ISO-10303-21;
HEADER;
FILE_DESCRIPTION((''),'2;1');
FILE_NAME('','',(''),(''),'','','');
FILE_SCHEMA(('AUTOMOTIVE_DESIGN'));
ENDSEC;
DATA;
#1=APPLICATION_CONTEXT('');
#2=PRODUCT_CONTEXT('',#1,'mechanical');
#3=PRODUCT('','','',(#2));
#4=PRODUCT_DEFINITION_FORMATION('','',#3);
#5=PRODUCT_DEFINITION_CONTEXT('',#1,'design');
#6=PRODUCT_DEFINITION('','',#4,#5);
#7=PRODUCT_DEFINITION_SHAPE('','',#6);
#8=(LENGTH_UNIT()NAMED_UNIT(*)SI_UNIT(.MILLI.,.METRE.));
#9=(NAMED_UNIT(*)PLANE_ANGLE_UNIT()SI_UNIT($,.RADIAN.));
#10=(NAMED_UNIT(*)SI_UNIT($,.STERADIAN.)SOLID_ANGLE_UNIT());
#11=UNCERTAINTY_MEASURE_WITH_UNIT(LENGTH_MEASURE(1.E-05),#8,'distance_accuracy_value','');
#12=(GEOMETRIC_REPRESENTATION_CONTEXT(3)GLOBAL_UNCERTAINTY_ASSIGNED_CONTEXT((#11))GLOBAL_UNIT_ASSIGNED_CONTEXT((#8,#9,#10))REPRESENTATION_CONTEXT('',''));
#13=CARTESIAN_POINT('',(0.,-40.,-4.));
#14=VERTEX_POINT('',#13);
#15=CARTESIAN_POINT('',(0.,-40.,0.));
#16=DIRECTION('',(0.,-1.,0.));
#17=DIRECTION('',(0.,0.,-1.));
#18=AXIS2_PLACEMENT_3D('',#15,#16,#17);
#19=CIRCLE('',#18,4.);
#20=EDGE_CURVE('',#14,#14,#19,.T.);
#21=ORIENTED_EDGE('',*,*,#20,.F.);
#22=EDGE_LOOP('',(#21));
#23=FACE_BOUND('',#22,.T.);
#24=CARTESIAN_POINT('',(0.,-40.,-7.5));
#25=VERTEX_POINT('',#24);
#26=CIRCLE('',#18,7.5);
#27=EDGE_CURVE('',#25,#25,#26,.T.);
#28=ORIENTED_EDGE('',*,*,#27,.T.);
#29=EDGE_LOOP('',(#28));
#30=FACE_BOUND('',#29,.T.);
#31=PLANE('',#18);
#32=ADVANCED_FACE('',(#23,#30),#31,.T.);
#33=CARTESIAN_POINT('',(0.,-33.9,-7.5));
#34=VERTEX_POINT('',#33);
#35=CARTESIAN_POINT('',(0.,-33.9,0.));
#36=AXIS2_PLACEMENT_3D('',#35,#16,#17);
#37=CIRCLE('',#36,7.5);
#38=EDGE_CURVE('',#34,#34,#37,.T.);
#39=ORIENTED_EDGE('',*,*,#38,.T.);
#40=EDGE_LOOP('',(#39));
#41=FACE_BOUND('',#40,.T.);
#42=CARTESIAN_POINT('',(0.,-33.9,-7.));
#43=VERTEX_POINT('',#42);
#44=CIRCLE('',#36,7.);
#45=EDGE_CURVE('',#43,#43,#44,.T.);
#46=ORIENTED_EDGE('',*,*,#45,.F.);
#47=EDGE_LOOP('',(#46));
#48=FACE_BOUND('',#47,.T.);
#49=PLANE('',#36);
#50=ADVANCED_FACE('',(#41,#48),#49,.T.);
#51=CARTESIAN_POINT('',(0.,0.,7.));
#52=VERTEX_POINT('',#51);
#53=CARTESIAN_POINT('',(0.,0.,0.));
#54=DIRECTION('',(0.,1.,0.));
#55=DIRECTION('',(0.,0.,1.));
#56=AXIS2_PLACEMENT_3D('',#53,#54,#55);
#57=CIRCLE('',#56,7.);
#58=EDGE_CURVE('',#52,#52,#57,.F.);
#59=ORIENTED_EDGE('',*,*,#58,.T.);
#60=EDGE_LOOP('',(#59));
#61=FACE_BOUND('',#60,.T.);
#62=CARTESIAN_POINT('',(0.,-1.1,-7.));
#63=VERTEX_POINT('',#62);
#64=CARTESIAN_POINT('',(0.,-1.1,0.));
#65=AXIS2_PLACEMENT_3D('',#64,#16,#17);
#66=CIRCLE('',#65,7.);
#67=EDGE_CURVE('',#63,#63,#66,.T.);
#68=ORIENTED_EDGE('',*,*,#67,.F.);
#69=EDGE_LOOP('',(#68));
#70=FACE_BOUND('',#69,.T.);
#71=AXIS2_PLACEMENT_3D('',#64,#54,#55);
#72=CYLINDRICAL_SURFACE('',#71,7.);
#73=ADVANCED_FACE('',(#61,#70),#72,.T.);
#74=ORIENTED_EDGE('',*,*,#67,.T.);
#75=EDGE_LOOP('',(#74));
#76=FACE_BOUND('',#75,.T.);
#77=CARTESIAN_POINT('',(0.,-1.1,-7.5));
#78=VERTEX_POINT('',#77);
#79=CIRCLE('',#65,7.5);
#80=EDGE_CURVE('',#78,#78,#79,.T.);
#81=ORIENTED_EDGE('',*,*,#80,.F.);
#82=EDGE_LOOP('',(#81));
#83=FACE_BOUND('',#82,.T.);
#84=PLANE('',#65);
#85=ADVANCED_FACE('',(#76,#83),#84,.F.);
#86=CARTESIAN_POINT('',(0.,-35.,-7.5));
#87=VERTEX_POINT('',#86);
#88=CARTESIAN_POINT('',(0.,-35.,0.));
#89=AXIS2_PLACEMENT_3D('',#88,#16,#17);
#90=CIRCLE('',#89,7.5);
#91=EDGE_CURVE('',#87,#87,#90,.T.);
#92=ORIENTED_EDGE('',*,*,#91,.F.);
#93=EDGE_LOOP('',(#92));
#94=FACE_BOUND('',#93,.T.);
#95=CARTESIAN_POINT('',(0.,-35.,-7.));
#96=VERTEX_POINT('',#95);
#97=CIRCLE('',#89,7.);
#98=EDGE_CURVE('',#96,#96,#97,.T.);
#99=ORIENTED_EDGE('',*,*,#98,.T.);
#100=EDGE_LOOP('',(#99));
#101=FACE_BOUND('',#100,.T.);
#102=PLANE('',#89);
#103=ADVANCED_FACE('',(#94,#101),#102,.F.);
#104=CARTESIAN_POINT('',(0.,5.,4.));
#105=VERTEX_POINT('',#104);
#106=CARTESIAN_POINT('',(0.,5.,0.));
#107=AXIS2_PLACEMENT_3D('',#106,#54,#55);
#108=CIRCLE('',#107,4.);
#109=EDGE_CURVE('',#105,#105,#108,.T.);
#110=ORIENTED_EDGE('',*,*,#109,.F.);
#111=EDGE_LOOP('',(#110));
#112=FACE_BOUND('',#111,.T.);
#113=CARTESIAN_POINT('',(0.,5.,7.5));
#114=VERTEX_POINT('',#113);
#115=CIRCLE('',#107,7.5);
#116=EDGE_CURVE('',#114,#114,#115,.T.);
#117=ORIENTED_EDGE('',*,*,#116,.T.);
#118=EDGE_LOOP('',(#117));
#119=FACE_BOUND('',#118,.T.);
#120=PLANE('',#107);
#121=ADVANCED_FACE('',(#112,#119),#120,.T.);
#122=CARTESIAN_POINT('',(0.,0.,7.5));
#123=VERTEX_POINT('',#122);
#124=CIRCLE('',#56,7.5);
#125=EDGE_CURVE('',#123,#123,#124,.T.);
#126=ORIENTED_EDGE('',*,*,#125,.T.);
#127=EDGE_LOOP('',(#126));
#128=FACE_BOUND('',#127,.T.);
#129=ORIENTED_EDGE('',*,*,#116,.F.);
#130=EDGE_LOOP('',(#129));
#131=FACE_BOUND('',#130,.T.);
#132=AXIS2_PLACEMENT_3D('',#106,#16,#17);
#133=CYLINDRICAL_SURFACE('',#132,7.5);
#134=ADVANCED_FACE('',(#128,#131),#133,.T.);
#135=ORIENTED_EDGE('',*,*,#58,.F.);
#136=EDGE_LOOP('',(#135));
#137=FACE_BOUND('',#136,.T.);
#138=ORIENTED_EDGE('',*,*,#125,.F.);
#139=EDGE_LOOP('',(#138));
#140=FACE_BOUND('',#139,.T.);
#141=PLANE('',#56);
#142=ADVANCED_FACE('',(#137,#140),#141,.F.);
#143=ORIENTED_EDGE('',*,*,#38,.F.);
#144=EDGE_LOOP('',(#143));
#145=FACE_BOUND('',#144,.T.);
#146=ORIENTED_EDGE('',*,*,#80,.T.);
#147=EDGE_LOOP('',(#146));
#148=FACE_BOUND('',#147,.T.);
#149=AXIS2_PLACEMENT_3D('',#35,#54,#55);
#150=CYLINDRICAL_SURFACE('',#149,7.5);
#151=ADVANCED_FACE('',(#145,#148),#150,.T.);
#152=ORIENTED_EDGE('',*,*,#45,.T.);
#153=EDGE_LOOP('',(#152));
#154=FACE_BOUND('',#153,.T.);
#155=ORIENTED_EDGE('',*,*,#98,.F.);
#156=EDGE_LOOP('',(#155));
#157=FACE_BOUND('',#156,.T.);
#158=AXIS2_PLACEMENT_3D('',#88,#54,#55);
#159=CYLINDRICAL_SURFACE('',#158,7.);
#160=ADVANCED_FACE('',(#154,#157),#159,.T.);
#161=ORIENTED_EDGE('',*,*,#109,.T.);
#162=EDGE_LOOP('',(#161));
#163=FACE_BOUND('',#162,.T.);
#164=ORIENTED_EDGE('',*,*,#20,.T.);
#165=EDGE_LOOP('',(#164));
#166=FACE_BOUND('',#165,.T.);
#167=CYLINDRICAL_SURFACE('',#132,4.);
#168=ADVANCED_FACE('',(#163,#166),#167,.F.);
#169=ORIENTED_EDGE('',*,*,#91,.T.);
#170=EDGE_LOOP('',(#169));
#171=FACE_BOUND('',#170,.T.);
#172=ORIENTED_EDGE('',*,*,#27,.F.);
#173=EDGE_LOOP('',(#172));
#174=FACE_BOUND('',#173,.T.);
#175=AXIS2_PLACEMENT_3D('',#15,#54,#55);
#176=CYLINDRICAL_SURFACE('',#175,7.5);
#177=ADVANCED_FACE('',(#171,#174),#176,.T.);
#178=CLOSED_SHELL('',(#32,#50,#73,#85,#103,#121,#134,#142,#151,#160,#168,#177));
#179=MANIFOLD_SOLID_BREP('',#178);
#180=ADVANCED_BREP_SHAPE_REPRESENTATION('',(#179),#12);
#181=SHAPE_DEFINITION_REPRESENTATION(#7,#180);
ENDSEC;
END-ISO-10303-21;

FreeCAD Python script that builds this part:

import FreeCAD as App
import Part
import Sketcher

doc = App.newDocument("Part")
body = doc.addObject("PartDesign::Body", "Body")

sketch1 = body.newObject("Sketcher::SketchObject", "Sketch")
sketch1.AttachmentSupport = (doc.getObject("XZ_Plane"), [""])
sketch1.MapMode = "FlatFace"
sketch1.addGeometry(Part.Circle(App.Vector(0, 0, 0), App.Vector(0, 0, 1), 7.5), False)
sketch1.addGeometry(Part.Circle(App.Vector(0, 0, 0), App.Vector(0, 0, 1), 4), False)
sketch1.addConstraint(Sketcher.Constraint("Coincident", 0, 3, -1, 1))
sketch1.addConstraint(Sketcher.Constraint("Coincident", 1, 3, -1, 1))
sketch1.addConstraint(Sketcher.Constraint("Diameter", 0, 15.0))
sketch1.addConstraint(Sketcher.Constraint("Diameter", 1, 8.0))
pad1 = body.newObject("PartDesign::Pad", "Pad")
pad1.Profile = sketch1
pad1.Length = 5
pad1.Reversed = True

sketch2 = body.newObject("Sketcher::SketchObject", "Sketch001")
sketch2.AttachmentSupport = (doc.getObject("XZ_Plane"), [""])
sketch2.MapMode = "FlatFace"
sketch2.AttachmentOffset = App.Placement(App.Vector(0, 0, 1.1), App.Rotation())
sketch2.addGeometry(Part.Circle(App.Vector(0, 0, 0), App.Vector(0, 0, 1), 7), False)
sketch2.addGeometry(Part.Circle(App.Vector(0, 0, 0), App.Vector(0, 0, 1), 4), False)
sketch2.addConstraint(Sketcher.Constraint("Coincident", 0, 3, -1, 1))
sketch2.addConstraint(Sketcher.Constraint("Coincident", 1, 3, -1, 1))
sketch2.addConstraint(Sketcher.Constraint("Diameter", 0, 14.0))
sketch2.addConstraint(Sketcher.Constraint("Diameter", 1, 8.0))
pad2 = body.newObject("PartDesign::Pad", "Pad001")
pad2.Profile = sketch2
pad2.Length = 1.1
pad2.Reversed = True

sketch3 = body.newObject("Sketcher::SketchObject", "Sketch002")
sketch3.AttachmentSupport = (doc.getObject("XZ_Plane"), [""])
sketch3.MapMode = "FlatFace"
sketch3.AttachmentOffset = App.Placement(App.Vector(0, 0, 33.9), App.Rotation())
sketch3.addGeometry(Part.Circle(App.Vector(0, 0, 0), App.Vector(0, 0, 1), 7.5), False)
sketch3.addGeometry(Part.Circle(App.Vector(0, 0, 0), App.Vector(0, 0, 1), 4), False)
sketch3.addConstraint(Sketcher.Constraint("Coincident", 0, 3, -1, 1))
sketch3.addConstraint(Sketcher.Constraint("Coincident", 1, 3, -1, 1))
sketch3.addConstraint(Sketcher.Constraint("Diameter", 0, 15.0))
sketch3.addConstraint(Sketcher.Constraint("Diameter", 1, 8.0))
pad3 = body.newObject("PartDesign::Pad", "Pad002")
pad3.Profile = sketch3
pad3.Length = 32.8
pad3.Reversed = True

sketch4 = body.newObject("Sketcher::SketchObject", "Sketch003")
sketch4.AttachmentSupport = (doc.getObject("XZ_Plane"), [""])
sketch4.MapMode = "FlatFace"
sketch4.AttachmentOffset = App.Placement(App.Vector(0, 0, 35), App.Rotation())
sketch4.addGeometry(Part.Circle(App.Vector(0, 0, 0), App.Vector(0, 0, 1), 7), False)
sketch4.addGeometry(Part.Circle(App.Vector(0, 0, 0), App.Vector(0, 0, 1), 4), False)
sketch4.addConstraint(Sketcher.Constraint("Coincident", 0, 3, -1, 1))
sketch4.addConstraint(Sketcher.Constraint("Coincident", 1, 3, -1, 1))
sketch4.addConstraint(Sketcher.Constraint("Diameter", 0, 14.0))
sketch4.addConstraint(Sketcher.Constraint("Diameter", 1, 8.0))
pad4 = body.newObject("PartDesign::Pad", "Pad003")
pad4.Profile = sketch4
pad4.Length = 1.1
pad4.Reversed = True

sketch5 = body.newObject("Sketcher::SketchObject", "Sketch004")
sketch5.AttachmentSupport = (doc.getObject("XZ_Plane"), [""])
sketch5.MapMode = "FlatFace"
sketch5.AttachmentOffset = App.Placement(App.Vector(0, 0, 40), App.Rotation())
sketch5.addGeometry(Part.Circle(App.Vector(0, 0, 0), App.Vector(0, 0, 1), 7.5), False)
sketch5.addGeometry(Part.Circle(App.Vector(0, 0, 0), App.Vector(0, 0, 1), 4), False)
sketch5.addConstraint(Sketcher.Constraint("Coincident", 0, 3, -1, 1))
sketch5.addConstraint(Sketcher.Constraint("Coincident", 1, 3, -1, 1))
sketch5.addConstraint(Sketcher.Constraint("Diameter", 0, 15.0))
sketch5.addConstraint(Sketcher.Constraint("Diameter", 1, 8.0))
pad5 = body.newObject("PartDesign::Pad", "Pad004")
pad5.Profile = sketch5
pad5.Length = 5
pad5.Reversed = True

doc.recompute()
